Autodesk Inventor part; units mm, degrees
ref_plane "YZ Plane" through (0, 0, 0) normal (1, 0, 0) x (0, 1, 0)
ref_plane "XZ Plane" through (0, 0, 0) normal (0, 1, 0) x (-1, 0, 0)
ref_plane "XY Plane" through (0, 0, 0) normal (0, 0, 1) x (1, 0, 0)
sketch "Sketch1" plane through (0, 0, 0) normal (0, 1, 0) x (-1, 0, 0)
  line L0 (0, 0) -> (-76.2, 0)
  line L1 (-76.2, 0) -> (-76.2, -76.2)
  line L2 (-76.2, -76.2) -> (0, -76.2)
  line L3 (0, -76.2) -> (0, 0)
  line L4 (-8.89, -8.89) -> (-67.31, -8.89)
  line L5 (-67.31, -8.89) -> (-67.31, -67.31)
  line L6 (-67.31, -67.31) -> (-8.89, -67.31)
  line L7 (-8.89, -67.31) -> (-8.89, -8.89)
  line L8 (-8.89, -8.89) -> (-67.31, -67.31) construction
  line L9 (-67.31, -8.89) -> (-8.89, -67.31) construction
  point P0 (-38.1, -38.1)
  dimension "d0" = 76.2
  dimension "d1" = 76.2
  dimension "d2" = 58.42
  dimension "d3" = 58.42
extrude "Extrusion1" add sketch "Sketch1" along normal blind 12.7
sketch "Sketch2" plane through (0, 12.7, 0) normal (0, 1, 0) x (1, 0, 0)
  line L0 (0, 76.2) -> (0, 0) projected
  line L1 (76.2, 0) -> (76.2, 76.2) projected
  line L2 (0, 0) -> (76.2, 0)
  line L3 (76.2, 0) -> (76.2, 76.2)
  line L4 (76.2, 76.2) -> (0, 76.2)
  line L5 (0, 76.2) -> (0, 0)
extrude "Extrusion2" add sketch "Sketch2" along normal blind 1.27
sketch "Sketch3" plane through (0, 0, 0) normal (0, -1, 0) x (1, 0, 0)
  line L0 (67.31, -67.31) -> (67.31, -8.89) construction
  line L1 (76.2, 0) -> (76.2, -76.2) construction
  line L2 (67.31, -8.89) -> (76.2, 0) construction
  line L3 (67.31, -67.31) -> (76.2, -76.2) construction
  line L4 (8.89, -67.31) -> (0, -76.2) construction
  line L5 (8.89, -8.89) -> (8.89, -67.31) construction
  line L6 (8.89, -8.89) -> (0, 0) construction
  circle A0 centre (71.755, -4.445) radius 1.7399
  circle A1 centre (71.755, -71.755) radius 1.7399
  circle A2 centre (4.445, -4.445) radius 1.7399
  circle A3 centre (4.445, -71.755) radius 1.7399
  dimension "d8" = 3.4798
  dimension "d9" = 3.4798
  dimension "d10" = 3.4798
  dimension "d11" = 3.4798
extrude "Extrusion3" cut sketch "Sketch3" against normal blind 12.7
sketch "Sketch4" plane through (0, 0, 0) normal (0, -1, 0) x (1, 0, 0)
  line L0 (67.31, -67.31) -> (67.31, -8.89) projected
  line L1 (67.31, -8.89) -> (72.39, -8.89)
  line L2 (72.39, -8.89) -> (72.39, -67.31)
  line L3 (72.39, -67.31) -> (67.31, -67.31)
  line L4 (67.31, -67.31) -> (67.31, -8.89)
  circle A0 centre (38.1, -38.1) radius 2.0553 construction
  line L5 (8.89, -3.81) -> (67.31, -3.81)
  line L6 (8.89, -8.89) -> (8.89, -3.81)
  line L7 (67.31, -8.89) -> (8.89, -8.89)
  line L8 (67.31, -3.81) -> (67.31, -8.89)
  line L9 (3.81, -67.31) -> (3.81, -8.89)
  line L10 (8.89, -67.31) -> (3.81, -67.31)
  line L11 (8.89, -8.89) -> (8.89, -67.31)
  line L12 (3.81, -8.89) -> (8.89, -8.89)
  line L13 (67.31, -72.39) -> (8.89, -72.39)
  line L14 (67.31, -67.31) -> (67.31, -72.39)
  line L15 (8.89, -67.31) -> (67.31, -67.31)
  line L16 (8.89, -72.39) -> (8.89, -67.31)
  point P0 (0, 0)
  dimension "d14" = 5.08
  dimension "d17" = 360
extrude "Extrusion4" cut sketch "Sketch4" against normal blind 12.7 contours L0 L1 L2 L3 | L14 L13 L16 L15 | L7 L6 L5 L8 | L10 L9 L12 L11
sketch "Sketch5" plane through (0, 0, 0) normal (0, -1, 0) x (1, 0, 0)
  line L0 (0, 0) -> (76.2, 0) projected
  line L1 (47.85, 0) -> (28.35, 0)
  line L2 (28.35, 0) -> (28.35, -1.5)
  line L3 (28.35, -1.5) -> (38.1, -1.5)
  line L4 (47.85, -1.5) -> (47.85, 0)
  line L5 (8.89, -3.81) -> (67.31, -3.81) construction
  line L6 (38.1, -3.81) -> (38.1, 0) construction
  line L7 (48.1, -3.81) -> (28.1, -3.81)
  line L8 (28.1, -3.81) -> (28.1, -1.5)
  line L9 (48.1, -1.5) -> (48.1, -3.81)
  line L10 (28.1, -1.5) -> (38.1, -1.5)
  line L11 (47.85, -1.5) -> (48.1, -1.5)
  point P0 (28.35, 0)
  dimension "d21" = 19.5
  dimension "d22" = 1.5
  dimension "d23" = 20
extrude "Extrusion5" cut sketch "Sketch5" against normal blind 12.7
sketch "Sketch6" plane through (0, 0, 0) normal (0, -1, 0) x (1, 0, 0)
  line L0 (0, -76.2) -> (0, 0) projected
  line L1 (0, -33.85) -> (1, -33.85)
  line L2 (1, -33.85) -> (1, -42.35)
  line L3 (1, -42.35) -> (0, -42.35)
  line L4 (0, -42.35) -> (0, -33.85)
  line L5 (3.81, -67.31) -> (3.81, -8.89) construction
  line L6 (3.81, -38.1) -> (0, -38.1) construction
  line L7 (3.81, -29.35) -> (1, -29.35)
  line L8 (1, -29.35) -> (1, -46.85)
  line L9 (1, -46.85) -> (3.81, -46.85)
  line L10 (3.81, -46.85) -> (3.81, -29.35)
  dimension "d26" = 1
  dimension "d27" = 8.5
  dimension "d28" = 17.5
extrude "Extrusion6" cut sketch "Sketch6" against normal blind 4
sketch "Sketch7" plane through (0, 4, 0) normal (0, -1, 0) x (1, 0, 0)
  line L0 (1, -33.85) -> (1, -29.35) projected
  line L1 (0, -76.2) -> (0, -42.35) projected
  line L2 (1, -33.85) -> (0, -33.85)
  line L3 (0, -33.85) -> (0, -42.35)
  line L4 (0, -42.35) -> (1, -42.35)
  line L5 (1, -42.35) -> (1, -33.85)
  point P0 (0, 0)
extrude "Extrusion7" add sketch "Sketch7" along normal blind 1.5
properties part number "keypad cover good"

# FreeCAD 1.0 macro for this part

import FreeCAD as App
import Part
import Sketcher

V = App.Vector


def add_polygon(sketch, points):
    """Adds a closed chain of lines whose ends are joined by coincident constraints."""
    first, n = sketch.GeometryCount, len(points)
    for a, b in zip(points, points[1:] + points[:1]):
        sketch.addGeometry(Part.LineSegment(App.Vector(*a, 0), App.Vector(*b, 0)), False)
    for i in range(n):
        sketch.addConstraint(Sketcher.Constraint("Coincident", first + i, 2, first + (i + 1) % n, 1))

doc = App.newDocument("Part")
body = doc.addObject("PartDesign::Body", "Body")

# Sketch on XZ plane
sketch1 = body.newObject("Sketcher::SketchObject", "Sketch")
sketch1.AttachmentSupport = (doc.getObject("XZ_Plane"), [""])
sketch1.MapMode = "FlatFace"
add_polygon(sketch1, [(0, -76), (0, 0), (76, 0), (76, -76)])  # lines 0-3
add_polygon(sketch1, [(67, -9), (9, -9), (9, -67), (67, -67)])  # lines 4-7
sketch1.addConstraint(Sketcher.Constraint("Vertical", 0))
sketch1.addConstraint(Sketcher.Constraint("Horizontal", 1))
sketch1.addConstraint(Sketcher.Constraint("Vertical", 2))
sketch1.addConstraint(Sketcher.Constraint("Horizontal", 3))
sketch1.addConstraint(Sketcher.Constraint("Horizontal", 4))
sketch1.addConstraint(Sketcher.Constraint("Vertical", 5))
sketch1.addConstraint(Sketcher.Constraint("Horizontal", 6))
sketch1.addConstraint(Sketcher.Constraint("Vertical", 7))
sketch1.addConstraint(Sketcher.Constraint("Coincident", 0, 2, -1, 1))
sketch1.addConstraint(Sketcher.Constraint("Equal", 3, 0))
sketch1.addConstraint(Sketcher.Constraint("Equal", 6, 5))
sketch1.addConstraint(Sketcher.Constraint("DistanceX", 1, 1, 1, 2, 76.2))
sketch1.addConstraint(Sketcher.Constraint("DistanceX", 4, 2, 4, 1, 58.42))
sketch1.addConstraint(Sketcher.Constraint("DistanceX", -1, 1, 4, 2, 8.89))
sketch1.addConstraint(Sketcher.Constraint("DistanceY", 4, 2, -1, 1, 8.89))
pad1 = body.newObject("PartDesign::Pad", "Pad")
pad1.Profile = sketch1
pad1.Length = 12.7
pad1.Reversed = True

# Sketch on XZ plane
sketch2 = body.newObject("Sketcher::SketchObject", "Sketch001")
sketch2.AttachmentSupport = (doc.getObject("XZ_Plane"), [""])
sketch2.MapMode = "FlatFace"
sketch2.AttachmentOffset = App.Placement(V(0, 0, -12.7), App.Rotation())
add_polygon(sketch2, [(76, -76), (0, -76), (0, 0), (76, 0)])  # lines 0-3
sketch2.addConstraint(Sketcher.Constraint("Horizontal", 0))
sketch2.addConstraint(Sketcher.Constraint("Vertical", 1))
sketch2.addConstraint(Sketcher.Constraint("Horizontal", 2))
sketch2.addConstraint(Sketcher.Constraint("Vertical", 3))
sketch2.addConstraint(Sketcher.Constraint("Coincident", 1, 2, -1, 1))
sketch2.addConstraint(Sketcher.Constraint("Equal", 2, 1))
sketch2.addConstraint(Sketcher.Constraint("DistanceX", 0, 2, 0, 1, 76.2))
pad2 = body.newObject("PartDesign::Pad", "Pad001")
pad2.Profile = sketch2
pad2.Length = 1.27
pad2.Reversed = True

# Sketch on XZ plane
sketch3 = body.newObject("Sketcher::SketchObject", "Sketch002")
sketch3.AttachmentSupport = (doc.getObject("XZ_Plane"), [""])
sketch3.MapMode = "FlatFace"
sketch3.addGeometry(Part.Circle(V(71.8, -4.4, 0), V(0, 0, 1), 1.7), False)
sketch3.addGeometry(Part.Circle(V(71.8, -71.8, 0), V(0, 0, 1), 1.7), False)
sketch3.addGeometry(Part.Circle(V(4.4, -4.4, 0), V(0, 0, 1), 1.7), False)
sketch3.addGeometry(Part.Circle(V(4.4, -71.8, 0), V(0, 0, 1), 1.7), False)
sketch3.addConstraint(Sketcher.Constraint("Equal", 0, 1))
sketch3.addConstraint(Sketcher.Constraint("Equal", 1, 2))
sketch3.addConstraint(Sketcher.Constraint("Equal", 2, 3))
sketch3.addConstraint(Sketcher.Constraint("Horizontal", 0, 3, 2, 3))
sketch3.addConstraint(Sketcher.Constraint("Horizontal", 1, 3, 3, 3))
sketch3.addConstraint(Sketcher.Constraint("Vertical", 0, 3, 1, 3))
sketch3.addConstraint(Sketcher.Constraint("Vertical", 2, 3, 3, 3))
sketch3.addConstraint(Sketcher.Constraint("Diameter", 0, 3.4798))
sketch3.addConstraint(Sketcher.Constraint("DistanceY", 1, 3, 0, 3, 67.31))
sketch3.addConstraint(Sketcher.Constraint("DistanceX", 2, 3, 0, 3, 67.31))
sketch3.addConstraint(Sketcher.Constraint("DistanceX", -1, 1, 0, 3, 71.755))
sketch3.addConstraint(Sketcher.Constraint("DistanceY", 0, 3, -1, 1, 4.445))
pocket1 = body.newObject("PartDesign::Pocket", "Pocket")
pocket1.Profile = sketch3
pocket1.Length = 12.7

# Sketch on XZ plane
sketch4 = body.newObject("Sketcher::SketchObject", "Sketch003")
sketch4.AttachmentSupport = (doc.getObject("XZ_Plane"), [""])
sketch4.MapMode = "FlatFace"
add_polygon(sketch4, [(67, -9), (67, -67), (72, -67), (72, -9)])  # lines 0-3
add_polygon(sketch4, [(67, -72), (67, -67), (9, -67), (9, -72)])  # lines 4-7
add_polygon(sketch4, [(9, -9), (67, -9), (67, -4), (9, -4)])  # lines 8-11
add_polygon(sketch4, [(4, -67), (9, -67), (9, -9), (4, -9)])  # lines 12-15
sketch4.addConstraint(Sketcher.Constraint("Vertical", 0))
sketch4.addConstraint(Sketcher.Constraint("Horizontal", 1))
sketch4.addConstraint(Sketcher.Constraint("Vertical", 2))
sketch4.addConstraint(Sketcher.Constraint("Horizontal", 3))
sketch4.addConstraint(Sketcher.Constraint("Vertical", 4))
sketch4.addConstraint(Sketcher.Constraint("Horizontal", 5))
sketch4.addConstraint(Sketcher.Constraint("Vertical", 6))
sketch4.addConstraint(Sketcher.Constraint("Horizontal", 7))
sketch4.addConstraint(Sketcher.Constraint("Horizontal", 8))
sketch4.addConstraint(Sketcher.Constraint("Vertical", 9))
sketch4.addConstraint(Sketcher.Constraint("Horizontal", 10))
sketch4.addConstraint(Sketcher.Constraint("Vertical", 11))
sketch4.addConstraint(Sketcher.Constraint("Horizontal", 12))
sketch4.addConstraint(Sketcher.Constraint("Vertical", 13))
sketch4.addConstraint(Sketcher.Constraint("Horizontal", 14))
sketch4.addConstraint(Sketcher.Constraint("Vertical", 15))
sketch4.addConstraint(Sketcher.Constraint("Coincident", 4, 2, 0, 2))
sketch4.addConstraint(Sketcher.Constraint("Coincident", 8, 2, 3, 2))
sketch4.addConstraint(Sketcher.Constraint("Coincident", 12, 2, 5, 2))
sketch4.addConstraint(Sketcher.Constraint("Coincident", 13, 2, 11, 2))
sketch4.addConstraint(Sketcher.Constraint("Equal", 3, 12))
sketch4.addConstraint(Sketcher.Constraint("Equal", 10, 0))
sketch4.addConstraint(Sketcher.Constraint("Equal", 14, 4))
sketch4.addConstraint(Sketcher.Constraint("Equal", 6, 9))
sketch4.addConstraint(Sketcher.Constraint("DistanceX", 1, 1, 1, 2, 5.08))
sketch4.addConstraint(Sketcher.Constraint("DistanceX", 5, 2, 5, 1, 58.42))
sketch4.addConstraint(Sketcher.Constraint("DistanceX", -1, 1, 0, 2, 67.31))
sketch4.addConstraint(Sketcher.Constraint("DistanceY", 0, 2, -1, 1, 67.31))
pocket2 = body.newObject("PartDesign::Pocket", "Pocket001")
pocket2.Profile = sketch4
pocket2.Length = 12.7

# Sketch on XZ plane
sketch5 = body.newObject("Sketcher::SketchObject", "Sketch004")
sketch5.AttachmentSupport = (doc.getObject("XZ_Plane"), [""])
sketch5.MapMode = "FlatFace"
add_polygon(sketch5, [(47.85, 0), (28.35, 0), (28.35, -1.5), (28.1, -1.5), (28.1, -3.81), (48.1, -3.81), (48.1, -1.5), (47.85, -1.5)])  # lines 0-7
sketch5.addConstraint(Sketcher.Constraint("Horizontal", 0))
sketch5.addConstraint(Sketcher.Constraint("Vertical", 1))
sketch5.addConstraint(Sketcher.Constraint("Horizontal", 2))
sketch5.addConstraint(Sketcher.Constraint("Vertical", 3))
sketch5.addConstraint(Sketcher.Constraint("Horizontal", 4))
sketch5.addConstraint(Sketcher.Constraint("Vertical", 5))
sketch5.addConstraint(Sketcher.Constraint("Horizontal", 6))
sketch5.addConstraint(Sketcher.Constraint("Vertical", 7))
sketch5.addConstraint(Sketcher.Constraint("PointOnObject", 0, 2, -1))
sketch5.addConstraint(Sketcher.Constraint("Horizontal", 2, 2, 5, 2))
sketch5.addConstraint(Sketcher.Constraint("Equal", 2, 6))
sketch5.addConstraint(Sketcher.Constraint("DistanceX", 4, 1, 4, 2, 20.0))
sketch5.addConstraint(Sketcher.Constraint("DistanceX", 0, 2, 0, 1, 19.5))
sketch5.addConstraint(Sketcher.Constraint("DistanceY", 1, 2, 1, 1, 1.5))
sketch5.addConstraint(Sketcher.Constraint("DistanceY", 3, 2, 3, 1, 2.31))
sketch5.addConstraint(Sketcher.Constraint("DistanceX", -1, 1, 2, 2, 28.1))
pocket3 = body.newObject("PartDesign::Pocket", "Pocket002")
pocket3.Profile = sketch5
pocket3.Length = 12.7

# Sketch on XZ plane
sketch6 = body.newObject("Sketcher::SketchObject", "Sketch005")
sketch6.AttachmentSupport = (doc.getObject("XZ_Plane"), [""])
sketch6.MapMode = "FlatFace"
add_polygon(sketch6, [(0, -33.9), (0, -42.4), (1, -42.4), (1, -46.9), (3.8, -46.9), (3.8, -29.4), (1, -29.4), (1, -33.9)])  # lines 0-7
sketch6.addConstraint(Sketcher.Constraint("Vertical", 0))
sketch6.addConstraint(Sketcher.Constraint("Horizontal", 1))
sketch6.addConstraint(Sketcher.Constraint("Vertical", 2))
sketch6.addConstraint(Sketcher.Constraint("Horizontal", 3))
sketch6.addConstraint(Sketcher.Constraint("Vertical", 4))
sketch6.addConstraint(Sketcher.Constraint("Horizontal", 5))
sketch6.addConstraint(Sketcher.Constraint("Vertical", 6))
sketch6.addConstraint(Sketcher.Constraint("Horizontal", 7))
sketch6.addConstraint(Sketcher.Constraint("PointOnObject", 0, 2, -2))
sketch6.addConstraint(Sketcher.Constraint("Vertical", 2, 2, 5, 2))
sketch6.addConstraint(Sketcher.Constraint("Equal", 2, 6))
sketch6.addConstraint(Sketcher.Constraint("DistanceX", 1, 1, 1, 2, 1.0))
sketch6.addConstraint(Sketcher.Constraint("DistanceY", 0, 2, 0, 1, 8.5))
sketch6.addConstraint(Sketcher.Constraint("DistanceY", 4, 1, 4, 2, 17.5))
sketch6.addConstraint(Sketcher.Constraint("DistanceX", 3, 1, 3, 2, 2.81))
sketch6.addConstraint(Sketcher.Constraint("DistanceY", 0, 2, -1, 1, 42.35))
pocket4 = body.newObject("PartDesign::Pocket", "Pocket003")
pocket4.Profile = sketch6
pocket4.Length = 4

# Sketch on XZ plane
sketch7 = body.newObject("Sketcher::SketchObject", "Sketch006")
sketch7.AttachmentSupport = (doc.getObject("XZ_Plane"), [""])
sketch7.MapMode = "FlatFace"
sketch7.AttachmentOffset = App.Placement(V(0, 0, -4), App.Rotation())
add_polygon(sketch7, [(1, -42.4), (1, -33.9), (0, -33.9), (0, -42.4)])  # lines 0-3
sketch7.addConstraint(Sketcher.Constraint("Vertical", 0))
sketch7.addConstraint(Sketcher.Constraint("Horizontal", 1))
sketch7.addConstraint(Sketcher.Constraint("Vertical", 2))
sketch7.addConstraint(Sketcher.Constraint("Horizontal", 3))
sketch7.addConstraint(Sketcher.Constraint("PointOnObject", 1, 2, -2))
sketch7.addConstraint(Sketcher.Constraint("DistanceX", 1, 2, 1, 1, 1.0))
sketch7.addConstraint(Sketcher.Constraint("DistanceY", 0, 1, 0, 2, 8.5))
sketch7.addConstraint(Sketcher.Constraint("DistanceY", 0, 2, -1, 1, 33.85))
pad3 = body.newObject("PartDesign::Pad", "Pad002")
pad3.Profile = sketch7
pad3.Length = 1.5

doc.recompute()
